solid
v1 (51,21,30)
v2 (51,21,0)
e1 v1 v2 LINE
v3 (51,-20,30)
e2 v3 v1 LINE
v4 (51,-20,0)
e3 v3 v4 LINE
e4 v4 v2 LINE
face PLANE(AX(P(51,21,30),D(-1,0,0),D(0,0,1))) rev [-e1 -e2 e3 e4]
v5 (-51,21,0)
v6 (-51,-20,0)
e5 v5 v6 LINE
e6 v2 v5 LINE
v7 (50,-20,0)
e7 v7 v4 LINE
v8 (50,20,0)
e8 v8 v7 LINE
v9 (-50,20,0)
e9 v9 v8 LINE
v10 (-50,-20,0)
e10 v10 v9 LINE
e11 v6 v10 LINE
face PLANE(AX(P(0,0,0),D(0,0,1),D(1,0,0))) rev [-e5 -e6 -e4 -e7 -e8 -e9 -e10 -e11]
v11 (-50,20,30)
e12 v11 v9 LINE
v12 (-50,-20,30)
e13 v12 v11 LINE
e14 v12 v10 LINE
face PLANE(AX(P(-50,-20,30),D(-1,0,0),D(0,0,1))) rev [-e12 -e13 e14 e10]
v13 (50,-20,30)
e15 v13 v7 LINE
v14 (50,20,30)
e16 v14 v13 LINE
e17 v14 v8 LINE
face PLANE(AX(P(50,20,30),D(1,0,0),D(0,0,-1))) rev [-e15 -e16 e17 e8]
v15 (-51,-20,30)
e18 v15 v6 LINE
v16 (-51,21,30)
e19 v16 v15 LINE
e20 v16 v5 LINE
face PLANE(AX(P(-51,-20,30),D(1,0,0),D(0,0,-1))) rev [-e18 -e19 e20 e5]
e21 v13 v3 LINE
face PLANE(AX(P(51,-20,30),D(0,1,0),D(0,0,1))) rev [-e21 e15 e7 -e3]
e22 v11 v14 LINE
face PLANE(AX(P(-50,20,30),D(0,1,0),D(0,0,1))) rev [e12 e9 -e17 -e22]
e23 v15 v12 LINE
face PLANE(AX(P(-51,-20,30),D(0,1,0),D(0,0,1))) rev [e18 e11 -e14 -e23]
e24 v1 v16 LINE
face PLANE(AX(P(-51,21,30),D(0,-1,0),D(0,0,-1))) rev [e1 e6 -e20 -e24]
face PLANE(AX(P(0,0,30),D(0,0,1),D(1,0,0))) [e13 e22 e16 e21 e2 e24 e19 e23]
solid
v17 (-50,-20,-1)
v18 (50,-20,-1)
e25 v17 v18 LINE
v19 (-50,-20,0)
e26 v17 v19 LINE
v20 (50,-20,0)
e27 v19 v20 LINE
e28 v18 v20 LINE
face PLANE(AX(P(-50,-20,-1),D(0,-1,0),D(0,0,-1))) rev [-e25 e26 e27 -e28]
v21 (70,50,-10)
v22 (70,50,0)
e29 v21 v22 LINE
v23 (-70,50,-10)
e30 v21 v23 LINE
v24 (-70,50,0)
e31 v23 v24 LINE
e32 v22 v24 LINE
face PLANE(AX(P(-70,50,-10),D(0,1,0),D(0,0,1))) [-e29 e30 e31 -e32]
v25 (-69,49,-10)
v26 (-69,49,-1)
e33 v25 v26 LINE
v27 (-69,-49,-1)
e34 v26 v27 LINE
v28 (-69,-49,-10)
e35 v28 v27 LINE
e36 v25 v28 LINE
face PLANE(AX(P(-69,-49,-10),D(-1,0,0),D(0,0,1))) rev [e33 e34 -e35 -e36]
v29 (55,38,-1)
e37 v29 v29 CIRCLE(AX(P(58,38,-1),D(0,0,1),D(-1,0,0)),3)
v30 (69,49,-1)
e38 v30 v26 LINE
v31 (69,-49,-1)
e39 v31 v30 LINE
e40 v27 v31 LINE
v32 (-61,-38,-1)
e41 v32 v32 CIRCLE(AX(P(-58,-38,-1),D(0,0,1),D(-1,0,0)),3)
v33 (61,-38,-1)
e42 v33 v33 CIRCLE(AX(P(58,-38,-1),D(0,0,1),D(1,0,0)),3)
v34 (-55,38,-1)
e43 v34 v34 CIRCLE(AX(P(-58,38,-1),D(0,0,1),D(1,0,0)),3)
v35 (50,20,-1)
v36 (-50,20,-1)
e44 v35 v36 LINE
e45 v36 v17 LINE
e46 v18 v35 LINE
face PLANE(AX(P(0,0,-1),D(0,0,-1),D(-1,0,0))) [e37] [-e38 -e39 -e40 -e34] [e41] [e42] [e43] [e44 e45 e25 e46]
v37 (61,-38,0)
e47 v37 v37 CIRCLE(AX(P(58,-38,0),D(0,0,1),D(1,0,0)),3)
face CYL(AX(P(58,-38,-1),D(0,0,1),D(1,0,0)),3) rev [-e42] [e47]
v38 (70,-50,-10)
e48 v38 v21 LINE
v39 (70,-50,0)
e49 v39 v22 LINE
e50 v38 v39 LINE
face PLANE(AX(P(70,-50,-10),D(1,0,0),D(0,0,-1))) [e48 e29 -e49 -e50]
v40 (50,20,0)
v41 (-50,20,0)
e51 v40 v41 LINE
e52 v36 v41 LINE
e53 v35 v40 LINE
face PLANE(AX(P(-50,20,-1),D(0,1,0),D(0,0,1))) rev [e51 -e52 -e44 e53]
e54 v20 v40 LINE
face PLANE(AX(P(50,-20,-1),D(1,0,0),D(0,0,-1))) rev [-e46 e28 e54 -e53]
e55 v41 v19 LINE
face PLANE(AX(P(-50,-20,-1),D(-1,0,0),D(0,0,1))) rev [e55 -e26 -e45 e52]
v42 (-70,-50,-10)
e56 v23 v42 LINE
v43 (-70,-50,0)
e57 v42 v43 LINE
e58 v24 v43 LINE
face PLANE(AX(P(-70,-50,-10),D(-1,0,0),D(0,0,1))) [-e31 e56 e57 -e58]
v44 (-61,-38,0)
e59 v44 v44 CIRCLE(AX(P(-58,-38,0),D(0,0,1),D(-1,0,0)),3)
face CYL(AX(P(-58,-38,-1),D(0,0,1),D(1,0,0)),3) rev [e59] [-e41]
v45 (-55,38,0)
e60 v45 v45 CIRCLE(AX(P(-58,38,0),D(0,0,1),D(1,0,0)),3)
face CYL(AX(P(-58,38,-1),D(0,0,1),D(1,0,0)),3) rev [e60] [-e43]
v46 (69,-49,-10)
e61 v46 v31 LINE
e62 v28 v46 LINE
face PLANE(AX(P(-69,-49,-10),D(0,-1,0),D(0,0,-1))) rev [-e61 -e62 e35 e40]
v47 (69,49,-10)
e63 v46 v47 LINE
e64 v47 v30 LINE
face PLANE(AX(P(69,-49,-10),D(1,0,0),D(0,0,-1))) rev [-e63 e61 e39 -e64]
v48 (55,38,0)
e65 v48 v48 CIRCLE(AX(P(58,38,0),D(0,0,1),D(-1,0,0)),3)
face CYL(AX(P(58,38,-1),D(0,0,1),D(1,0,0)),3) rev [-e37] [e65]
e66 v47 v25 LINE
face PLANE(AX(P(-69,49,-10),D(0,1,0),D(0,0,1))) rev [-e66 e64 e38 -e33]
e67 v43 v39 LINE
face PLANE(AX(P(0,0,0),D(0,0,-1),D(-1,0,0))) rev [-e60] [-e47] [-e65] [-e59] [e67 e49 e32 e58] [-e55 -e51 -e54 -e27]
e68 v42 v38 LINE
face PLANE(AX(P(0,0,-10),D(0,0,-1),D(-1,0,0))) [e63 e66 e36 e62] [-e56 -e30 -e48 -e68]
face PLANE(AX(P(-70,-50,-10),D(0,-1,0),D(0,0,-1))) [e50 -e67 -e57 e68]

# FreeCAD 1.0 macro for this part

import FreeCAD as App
import Part
import Sketcher
Q = App.Units.Quantity

doc = App.newDocument("Part")
params = doc.addObject("Spreadsheet::Sheet", "Params")
for row, (alias, value) in enumerate([
    ("sketch1_width", "140 mm"),
    ("sketch1_width2", "138 mm"),
    ("sketch1_height", "100 mm"),
    ("sketch1_height2", "98 mm"),
    ("pad1_length", "10 mm"),
    ("sketch2_width", "138 mm"),
    ("sketch2_height", "98 mm"),
    ("pad2_length", "1 mm"),
    ("sketch3_diameter", "6 mm"),
    ("sketch3_width", "100 mm"),
    ("sketch3_height", "40 mm"),
    ("pocket1_length", "1 mm"),
    ("sketch4_width", "100 mm"),
    ("sketch4_width2", "1 mm"),
    ("sketch4_height", "40 mm"),
    ("sketch4_height2", "41 mm"),
    ("pad3_length", "30 mm"),
], start=1):
    params.set(f"A{row}", alias)
    params.set(f"B{row}", "=" + value)
    params.setAlias(f"B{row}", alias)

body = doc.addObject("PartDesign::Body", "Body")

# Sketch on XY plane
sketch1 = body.newObject("Sketcher::SketchObject", "Sketch")
sketch1.AttachmentSupport = (doc.getObject("XY_Plane"), [""])
sketch1.MapMode = "FlatFace"
sketch1.addGeometry(Part.LineSegment(App.Vector(-70, 50, 0), App.Vector(-70, -50, 0)), False)
sketch1.addGeometry(Part.LineSegment(App.Vector(-70, -50, 0), App.Vector(70, -50, 0)), False)
sketch1.addGeometry(Part.LineSegment(App.Vector(70, -50, 0), App.Vector(70, 50, 0)), False)
sketch1.addGeometry(Part.LineSegment(App.Vector(70, 50, 0), App.Vector(-70, 50, 0)), False)
sketch1.addGeometry(Part.LineSegment(App.Vector(69, -49, 0), App.Vector(-69, -49, 0)), False)
sketch1.addGeometry(Part.LineSegment(App.Vector(-69, -49, 0), App.Vector(-69, 49, 0)), False)
sketch1.addGeometry(Part.LineSegment(App.Vector(-69, 49, 0), App.Vector(69, 49, 0)), False)
sketch1.addGeometry(Part.LineSegment(App.Vector(69, 49, 0), App.Vector(69, -49, 0)), False)
sketch1.addConstraint(Sketcher.Constraint("Coincident", 0, 2, 1, 1))
sketch1.addConstraint(Sketcher.Constraint("Coincident", 1, 2, 2, 1))
sketch1.addConstraint(Sketcher.Constraint("Coincident", 2, 2, 3, 1))
sketch1.addConstraint(Sketcher.Constraint("Coincident", 3, 2, 0, 1))
sketch1.addConstraint(Sketcher.Constraint("Coincident", 4, 2, 5, 1))
sketch1.addConstraint(Sketcher.Constraint("Coincident", 5, 2, 6, 1))
sketch1.addConstraint(Sketcher.Constraint("Coincident", 6, 2, 7, 1))
sketch1.addConstraint(Sketcher.Constraint("Coincident", 7, 2, 4, 1))
sketch1.addConstraint(Sketcher.Constraint("Vertical", 0))
sketch1.addConstraint(Sketcher.Constraint("Horizontal", 1))
sketch1.addConstraint(Sketcher.Constraint("Vertical", 2))
sketch1.addConstraint(Sketcher.Constraint("Horizontal", 3))
sketch1.addConstraint(Sketcher.Constraint("Horizontal", 4))
sketch1.addConstraint(Sketcher.Constraint("Vertical", 5))
sketch1.addConstraint(Sketcher.Constraint("Horizontal", 6))
sketch1.addConstraint(Sketcher.Constraint("Vertical", 7))
sketch1.addConstraint(Sketcher.Constraint("Symmetric", 0, 2, 2, 2, -1, 1))
sketch1.addConstraint(Sketcher.Constraint("Symmetric", 4, 2, 6, 2, -1, 1))
sketch1.addConstraint(Sketcher.Constraint("DistanceX", 1, 1, 1, 2, Q("140 mm")))
sketch1.addConstraint(Sketcher.Constraint("DistanceX", 4, 2, 4, 1, Q("138 mm")))
sketch1.addConstraint(Sketcher.Constraint("DistanceY", 0, 2, 0, 1, Q("100 mm")))
sketch1.addConstraint(Sketcher.Constraint("DistanceY", 5, 1, 5, 2, Q("98 mm")))
sketch1.setExpression("Constraints[18]", "Params.sketch1_width")
sketch1.setExpression("Constraints[19]", "Params.sketch1_width2")
sketch1.setExpression("Constraints[20]", "Params.sketch1_height")
sketch1.setExpression("Constraints[21]", "Params.sketch1_height2")
pad1 = body.newObject("PartDesign::Pad", "Pad")
pad1.Profile = sketch1
pad1.setExpression("Length", "Params.pad1_length")
pad1.Reversed = True

# Sketch on XY plane
sketch2 = body.newObject("Sketcher::SketchObject", "Sketch001")
sketch2.AttachmentSupport = (doc.getObject("XY_Plane"), [""])
sketch2.MapMode = "FlatFace"
sketch2.addGeometry(Part.LineSegment(App.Vector(-69, 49, 0), App.Vector(-69, -49, 0)), False)
sketch2.addGeometry(Part.LineSegment(App.Vector(-69, -49, 0), App.Vector(69, -49, 0)), False)
sketch2.addGeometry(Part.LineSegment(App.Vector(69, -49, 0), App.Vector(69, 49, 0)), False)
sketch2.addGeometry(Part.LineSegment(App.Vector(69, 49, 0), App.Vector(-69, 49, 0)), False)
sketch2.addConstraint(Sketcher.Constraint("Coincident", 0, 2, 1, 1))
sketch2.addConstraint(Sketcher.Constraint("Coincident", 1, 2, 2, 1))
sketch2.addConstraint(Sketcher.Constraint("Coincident", 2, 2, 3, 1))
sketch2.addConstraint(Sketcher.Constraint("Coincident", 3, 2, 0, 1))
sketch2.addConstraint(Sketcher.Constraint("Vertical", 0))
sketch2.addConstraint(Sketcher.Constraint("Horizontal", 1))
sketch2.addConstraint(Sketcher.Constraint("Vertical", 2))
sketch2.addConstraint(Sketcher.Constraint("Horizontal", 3))
sketch2.addConstraint(Sketcher.Constraint("Symmetric", 0, 2, 2, 2, -1, 1))
sketch2.addConstraint(Sketcher.Constraint("DistanceX", 1, 1, 1, 2, Q("138 mm")))
sketch2.addConstraint(Sketcher.Constraint("DistanceY", 0, 2, 0, 1, Q("98 mm")))
sketch2.setExpression("Constraints[9]", "Params.sketch2_width")
sketch2.setExpression("Constraints[10]", "Params.sketch2_height")
pad2 = body.newObject("PartDesign::Pad", "Pad001")
pad2.Profile = sketch2
pad2.setExpression("Length", "Params.pad2_length")
pad2.Reversed = True

# Sketch on XY plane
sketch3 = body.newObject("Sketcher::SketchObject", "Sketch002")
sketch3.AttachmentSupport = (doc.getObject("XY_Plane"), [""])
sketch3.MapMode = "FlatFace"
sketch3.addGeometry(Part.Circle(App.Vector(-58, 38, 0), App.Vector(0, 0, 1), 3), False)
sketch3.addGeometry(Part.Circle(App.Vector(58, 38, 0), App.Vector(0, 0, 1), 3), False)
sketch3.addGeometry(Part.Circle(App.Vector(58, -38, 0), App.Vector(0, 0, 1), 3), False)
sketch3.addGeometry(Part.Circle(App.Vector(-58, -38, 0), App.Vector(0, 0, 1), 3), False)
sketch3.addGeometry(Part.LineSegment(App.Vector(-50, 20, 0), App.Vector(-50, -20, 0)), False)
sketch3.addGeometry(Part.LineSegment(App.Vector(-50, -20, 0), App.Vector(50, -20, 0)), False)
sketch3.addGeometry(Part.LineSegment(App.Vector(50, -20, 0), App.Vector(50, 20, 0)), False)
sketch3.addGeometry(Part.LineSegment(App.Vector(50, 20, 0), App.Vector(-50, 20, 0)), False)
sketch3.addConstraint(Sketcher.Constraint("Coincident", 4, 2, 5, 1))
sketch3.addConstraint(Sketcher.Constraint("Coincident", 5, 2, 6, 1))
sketch3.addConstraint(Sketcher.Constraint("Coincident", 6, 2, 7, 1))
sketch3.addConstraint(Sketcher.Constraint("Coincident", 7, 2, 4, 1))
sketch3.addConstraint(Sketcher.Constraint("Vertical", 4))
sketch3.addConstraint(Sketcher.Constraint("Horizontal", 5))
sketch3.addConstraint(Sketcher.Constraint("Vertical", 6))
sketch3.addConstraint(Sketcher.Constraint("Horizontal", 7))
sketch3.addConstraint(Sketcher.Constraint("Equal", 0, 1))
sketch3.addConstraint(Sketcher.Constraint("Equal", 1, 2))
sketch3.addConstraint(Sketcher.Constraint("Equal", 2, 3))
sketch3.addConstraint(Sketcher.Constraint("Symmetric", 0, 3, 2, 3, -1, 1))
sketch3.addConstraint(Sketcher.Constraint("Symmetric", 1, 3, 3, 3, -1, 1))
sketch3.addConstraint(Sketcher.Constraint("Symmetric", 4, 2, 6, 2, -1, 1))
sketch3.addConstraint(Sketcher.Constraint("Symmetric", 0, 3, 1, 3, -2))
sketch3.addConstraint(Sketcher.Constraint("Diameter", 0, Q("6 mm")))
sketch3.addConstraint(Sketcher.Constraint("DistanceX", 5, 1, 5, 2, Q("100 mm")))
sketch3.addConstraint(Sketcher.Constraint("DistanceY", 4, 2, 4, 1, Q("40 mm")))
sketch3.addConstraint(Sketcher.Constraint("DistanceX", 0, 3, -1, 1, Q("58 mm")))
sketch3.addConstraint(Sketcher.Constraint("DistanceY", -1, 1, 0, 3, Q("38 mm")))
sketch3.setExpression("Constraints[15]", "Params.sketch3_diameter")
sketch3.setExpression("Constraints[16]", "Params.sketch3_width")
sketch3.setExpression("Constraints[17]", "Params.sketch3_height")
pocket1 = body.newObject("PartDesign::Pocket", "Pocket")
pocket1.Profile = sketch3
pocket1.setExpression("Length", "Params.pocket1_length")
body2 = doc.addObject("PartDesign::Body", "Body001")

# Sketch on XY plane
sketch4 = body2.newObject("Sketcher::SketchObject", "Sketch003")
sketch4.AttachmentSupport = (doc.getObject("XY_Plane001"), [""])
sketch4.MapMode = "FlatFace"
sketch4.addGeometry(Part.LineSegment(App.Vector(-50, -20, 0), App.Vector(-50, 20, 0)), False)
sketch4.addGeometry(Part.LineSegment(App.Vector(-50, 20, 0), App.Vector(50, 20, 0)), False)
sketch4.addGeometry(Part.LineSegment(App.Vector(50, 20, 0), App.Vector(50, -20, 0)), False)
sketch4.addGeometry(Part.LineSegment(App.Vector(50, -20, 0), App.Vector(51, -20, 0)), False)
sketch4.addGeometry(Part.LineSegment(App.Vector(51, -20, 0), App.Vector(51, 21, 0)), False)
sketch4.addGeometry(Part.LineSegment(App.Vector(51, 21, 0), App.Vector(-51, 21, 0)), False)
sketch4.addGeometry(Part.LineSegment(App.Vector(-51, 21, 0), App.Vector(-51, -20, 0)), False)
sketch4.addGeometry(Part.LineSegment(App.Vector(-51, -20, 0), App.Vector(-50, -20, 0)), False)
sketch4.addConstraint(Sketcher.Constraint("Coincident", 0, 2, 1, 1))
sketch4.addConstraint(Sketcher.Constraint("Coincident", 1, 2, 2, 1))
sketch4.addConstraint(Sketcher.Constraint("Coincident", 2, 2, 3, 1))
sketch4.addConstraint(Sketcher.Constraint("Coincident", 3, 2, 4, 1))
sketch4.addConstraint(Sketcher.Constraint("Coincident", 4, 2, 5, 1))
sketch4.addConstraint(Sketcher.Constraint("Coincident", 5, 2, 6, 1))
sketch4.addConstraint(Sketcher.Constraint("Coincident", 6, 2, 7, 1))
sketch4.addConstraint(Sketcher.Constraint("Coincident", 7, 2, 0, 1))
sketch4.addConstraint(Sketcher.Constraint("Vertical", 0))
sketch4.addConstraint(Sketcher.Constraint("Horizontal", 1))
sketch4.addConstraint(Sketcher.Constraint("Vertical", 2))
sketch4.addConstraint(Sketcher.Constraint("Horizontal", 3))
sketch4.addConstraint(Sketcher.Constraint("Vertical", 4))
sketch4.addConstraint(Sketcher.Constraint("Horizontal", 5))
sketch4.addConstraint(Sketcher.Constraint("Vertical", 6))
sketch4.addConstraint(Sketcher.Constraint("Horizontal", 7))
sketch4.addConstraint(Sketcher.Constraint("Symmetric", 0, 2, 2, 2, -1, 1))
sketch4.addConstraint(Sketcher.Constraint("Symmetric", 3, 2, 6, 2, -2))
sketch4.addConstraint(Sketcher.Constraint("DistanceX", 1, 1, 1, 2, Q("100 mm")))
sketch4.addConstraint(Sketcher.Constraint("DistanceX", 3, 1, 3, 2, Q("1 mm")))
sketch4.addConstraint(Sketcher.Constraint("DistanceY", 0, 1, 0, 2, Q("40 mm")))
sketch4.addConstraint(Sketcher.Constraint("DistanceY", 4, 1, 4, 2, Q("41 mm")))
sketch4.setExpression("Constraints[18]", "Params.sketch4_width")
sketch4.setExpression("Constraints[19]", "Params.sketch4_width2")
sketch4.setExpression("Constraints[20]", "Params.sketch4_height")
sketch4.setExpression("Constraints[21]", "Params.sketch4_height2")
pad3 = body2.newObject("PartDesign::Pad", "Pad002")
pad3.Profile = sketch4
pad3.setExpression("Length", "Params.pad3_length")

doc.recompute()
